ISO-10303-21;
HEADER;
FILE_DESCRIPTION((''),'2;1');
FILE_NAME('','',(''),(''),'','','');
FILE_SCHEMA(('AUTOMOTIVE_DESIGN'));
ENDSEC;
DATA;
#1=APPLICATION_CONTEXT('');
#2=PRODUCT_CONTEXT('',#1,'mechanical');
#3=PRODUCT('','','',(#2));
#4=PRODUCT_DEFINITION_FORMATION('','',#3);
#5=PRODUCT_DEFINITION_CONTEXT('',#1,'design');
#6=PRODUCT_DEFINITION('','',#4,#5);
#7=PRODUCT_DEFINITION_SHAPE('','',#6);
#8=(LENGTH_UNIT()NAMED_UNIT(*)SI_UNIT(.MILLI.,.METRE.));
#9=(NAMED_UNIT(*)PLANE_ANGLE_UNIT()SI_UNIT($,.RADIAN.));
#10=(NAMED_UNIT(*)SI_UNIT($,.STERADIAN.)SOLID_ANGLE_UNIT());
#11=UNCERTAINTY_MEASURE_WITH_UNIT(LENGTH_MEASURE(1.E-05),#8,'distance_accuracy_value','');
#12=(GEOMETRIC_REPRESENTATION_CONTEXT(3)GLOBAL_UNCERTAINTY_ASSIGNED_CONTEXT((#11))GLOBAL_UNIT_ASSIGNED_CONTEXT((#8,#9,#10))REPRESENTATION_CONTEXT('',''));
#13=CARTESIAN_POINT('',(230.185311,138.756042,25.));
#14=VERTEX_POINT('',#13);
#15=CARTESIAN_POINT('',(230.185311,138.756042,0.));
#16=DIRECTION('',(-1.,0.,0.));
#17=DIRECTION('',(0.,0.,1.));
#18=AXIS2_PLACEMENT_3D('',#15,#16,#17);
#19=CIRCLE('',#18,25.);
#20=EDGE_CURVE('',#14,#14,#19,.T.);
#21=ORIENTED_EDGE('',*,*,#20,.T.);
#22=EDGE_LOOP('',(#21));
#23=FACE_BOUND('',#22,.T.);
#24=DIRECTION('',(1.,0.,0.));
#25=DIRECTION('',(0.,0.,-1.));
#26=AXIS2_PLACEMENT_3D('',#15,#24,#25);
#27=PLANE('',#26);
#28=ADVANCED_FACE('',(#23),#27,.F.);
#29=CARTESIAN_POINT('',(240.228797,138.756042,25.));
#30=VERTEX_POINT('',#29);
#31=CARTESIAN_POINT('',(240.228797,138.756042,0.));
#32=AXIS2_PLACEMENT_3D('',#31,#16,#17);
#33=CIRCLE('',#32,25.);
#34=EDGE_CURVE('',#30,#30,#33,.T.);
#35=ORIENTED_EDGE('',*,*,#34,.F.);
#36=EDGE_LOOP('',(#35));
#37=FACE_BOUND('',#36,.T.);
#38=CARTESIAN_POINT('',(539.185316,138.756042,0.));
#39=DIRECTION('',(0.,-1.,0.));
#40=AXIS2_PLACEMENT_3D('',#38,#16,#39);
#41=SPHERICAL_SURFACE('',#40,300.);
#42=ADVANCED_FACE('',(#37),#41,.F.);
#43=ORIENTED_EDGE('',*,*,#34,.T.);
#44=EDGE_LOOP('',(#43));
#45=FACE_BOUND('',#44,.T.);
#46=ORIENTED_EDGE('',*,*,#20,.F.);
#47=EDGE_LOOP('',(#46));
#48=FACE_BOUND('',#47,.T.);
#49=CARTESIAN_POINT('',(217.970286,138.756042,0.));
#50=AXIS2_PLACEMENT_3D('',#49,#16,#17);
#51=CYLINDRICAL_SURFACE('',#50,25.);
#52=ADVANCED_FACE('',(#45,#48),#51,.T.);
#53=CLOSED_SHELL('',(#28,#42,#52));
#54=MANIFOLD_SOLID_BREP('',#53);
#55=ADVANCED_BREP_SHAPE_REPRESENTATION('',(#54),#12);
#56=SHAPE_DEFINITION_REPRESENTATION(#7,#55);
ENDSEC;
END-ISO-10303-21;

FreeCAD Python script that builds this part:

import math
import FreeCAD as App
import Part
import Sketcher
from FreeCAD import Vector
Q = App.Units.Quantity

doc = App.newDocument("Part")
params = doc.addObject("Spreadsheet::Sheet", "Params")
for row, (alias, value) in enumerate([
    ("sketch1_radius", "300 mm"),
    ("sketch1_height", "25 mm"),
    ("revolution_angle", "360 deg"),
], start=1):
    params.set(f"A{row}", alias)
    params.set(f"B{row}", "=" + value)
    params.setAlias(f"B{row}", alias)

body = doc.addObject("PartDesign::Body", "Body")

sketch1 = doc.addObject("Sketcher::SketchObject", "Sketch")
body.addObject(sketch1)
sketch1.AttachmentSupport = (doc.XY_Plane, [""])
sketch1.MapMode = "FlatFace"
sketch1.addGeometry([
    Part.LineSegment(Vector(230, 164, 0), Vector(230, 139, 0)),
    Part.LineSegment(Vector(230, 139, 0), Vector(239, 139, 0)),
    Part.ArcOfCircle(Part.Circle(Vector(539, 139, 0), Vector(0, 0, 1), 300), math.radians(175.22), math.radians(180)),
    Part.LineSegment(Vector(240, 164, 0), Vector(230, 164, 0)),
], False)
sketch1.addGeometry(Part.LineSegment(Vector(230, 139, 0), Vector(539, 139, 0)), True)
sketch1.addConstraint([
    Sketcher.Constraint("Coincident", 0, 2, 1, 1),
    Sketcher.Constraint("Coincident", 1, 2, 2, 2),
    Sketcher.Constraint("Coincident", 2, 1, 3, 1),
    Sketcher.Constraint("Coincident", 3, 2, 0, 1),
    Sketcher.Constraint("Vertical", 0),
    Sketcher.Constraint("Horizontal", 1),
    Sketcher.Constraint("Horizontal", 3),
    Sketcher.Constraint("Horizontal", 4),
    Sketcher.Constraint("Coincident", 4, 1, 0, 2),
    Sketcher.Constraint("Coincident", 4, 2, 2, 3),
    Sketcher.Constraint("Radius", 2, Q("300 mm")),
    Sketcher.Constraint("DistanceY", 0, 2, 0, 1, Q("25 mm")),
    Sketcher.Constraint("DistanceX", 1, 1, 1, 2, Q("9.000005 mm")),
    Sketcher.Constraint("DistanceX", -1, 1, 0, 2, Q("230.185311 mm")),
    Sketcher.Constraint("DistanceY", -1, 1, 2, 3, Q("138.756042 mm")),
])
sketch1.setExpression("Constraints[10]", "Params.sketch1_radius")
sketch1.setExpression("Constraints[11]", "Params.sketch1_height")
revolution = doc.addObject("PartDesign::Revolution", "Revolution")
body.addObject(revolution)
revolution.Profile = sketch1
revolution.ReferenceAxis = (sketch1, ["Axis0"])
revolution.setExpression("Angle", "Params.revolution_angle")

doc.recompute()
